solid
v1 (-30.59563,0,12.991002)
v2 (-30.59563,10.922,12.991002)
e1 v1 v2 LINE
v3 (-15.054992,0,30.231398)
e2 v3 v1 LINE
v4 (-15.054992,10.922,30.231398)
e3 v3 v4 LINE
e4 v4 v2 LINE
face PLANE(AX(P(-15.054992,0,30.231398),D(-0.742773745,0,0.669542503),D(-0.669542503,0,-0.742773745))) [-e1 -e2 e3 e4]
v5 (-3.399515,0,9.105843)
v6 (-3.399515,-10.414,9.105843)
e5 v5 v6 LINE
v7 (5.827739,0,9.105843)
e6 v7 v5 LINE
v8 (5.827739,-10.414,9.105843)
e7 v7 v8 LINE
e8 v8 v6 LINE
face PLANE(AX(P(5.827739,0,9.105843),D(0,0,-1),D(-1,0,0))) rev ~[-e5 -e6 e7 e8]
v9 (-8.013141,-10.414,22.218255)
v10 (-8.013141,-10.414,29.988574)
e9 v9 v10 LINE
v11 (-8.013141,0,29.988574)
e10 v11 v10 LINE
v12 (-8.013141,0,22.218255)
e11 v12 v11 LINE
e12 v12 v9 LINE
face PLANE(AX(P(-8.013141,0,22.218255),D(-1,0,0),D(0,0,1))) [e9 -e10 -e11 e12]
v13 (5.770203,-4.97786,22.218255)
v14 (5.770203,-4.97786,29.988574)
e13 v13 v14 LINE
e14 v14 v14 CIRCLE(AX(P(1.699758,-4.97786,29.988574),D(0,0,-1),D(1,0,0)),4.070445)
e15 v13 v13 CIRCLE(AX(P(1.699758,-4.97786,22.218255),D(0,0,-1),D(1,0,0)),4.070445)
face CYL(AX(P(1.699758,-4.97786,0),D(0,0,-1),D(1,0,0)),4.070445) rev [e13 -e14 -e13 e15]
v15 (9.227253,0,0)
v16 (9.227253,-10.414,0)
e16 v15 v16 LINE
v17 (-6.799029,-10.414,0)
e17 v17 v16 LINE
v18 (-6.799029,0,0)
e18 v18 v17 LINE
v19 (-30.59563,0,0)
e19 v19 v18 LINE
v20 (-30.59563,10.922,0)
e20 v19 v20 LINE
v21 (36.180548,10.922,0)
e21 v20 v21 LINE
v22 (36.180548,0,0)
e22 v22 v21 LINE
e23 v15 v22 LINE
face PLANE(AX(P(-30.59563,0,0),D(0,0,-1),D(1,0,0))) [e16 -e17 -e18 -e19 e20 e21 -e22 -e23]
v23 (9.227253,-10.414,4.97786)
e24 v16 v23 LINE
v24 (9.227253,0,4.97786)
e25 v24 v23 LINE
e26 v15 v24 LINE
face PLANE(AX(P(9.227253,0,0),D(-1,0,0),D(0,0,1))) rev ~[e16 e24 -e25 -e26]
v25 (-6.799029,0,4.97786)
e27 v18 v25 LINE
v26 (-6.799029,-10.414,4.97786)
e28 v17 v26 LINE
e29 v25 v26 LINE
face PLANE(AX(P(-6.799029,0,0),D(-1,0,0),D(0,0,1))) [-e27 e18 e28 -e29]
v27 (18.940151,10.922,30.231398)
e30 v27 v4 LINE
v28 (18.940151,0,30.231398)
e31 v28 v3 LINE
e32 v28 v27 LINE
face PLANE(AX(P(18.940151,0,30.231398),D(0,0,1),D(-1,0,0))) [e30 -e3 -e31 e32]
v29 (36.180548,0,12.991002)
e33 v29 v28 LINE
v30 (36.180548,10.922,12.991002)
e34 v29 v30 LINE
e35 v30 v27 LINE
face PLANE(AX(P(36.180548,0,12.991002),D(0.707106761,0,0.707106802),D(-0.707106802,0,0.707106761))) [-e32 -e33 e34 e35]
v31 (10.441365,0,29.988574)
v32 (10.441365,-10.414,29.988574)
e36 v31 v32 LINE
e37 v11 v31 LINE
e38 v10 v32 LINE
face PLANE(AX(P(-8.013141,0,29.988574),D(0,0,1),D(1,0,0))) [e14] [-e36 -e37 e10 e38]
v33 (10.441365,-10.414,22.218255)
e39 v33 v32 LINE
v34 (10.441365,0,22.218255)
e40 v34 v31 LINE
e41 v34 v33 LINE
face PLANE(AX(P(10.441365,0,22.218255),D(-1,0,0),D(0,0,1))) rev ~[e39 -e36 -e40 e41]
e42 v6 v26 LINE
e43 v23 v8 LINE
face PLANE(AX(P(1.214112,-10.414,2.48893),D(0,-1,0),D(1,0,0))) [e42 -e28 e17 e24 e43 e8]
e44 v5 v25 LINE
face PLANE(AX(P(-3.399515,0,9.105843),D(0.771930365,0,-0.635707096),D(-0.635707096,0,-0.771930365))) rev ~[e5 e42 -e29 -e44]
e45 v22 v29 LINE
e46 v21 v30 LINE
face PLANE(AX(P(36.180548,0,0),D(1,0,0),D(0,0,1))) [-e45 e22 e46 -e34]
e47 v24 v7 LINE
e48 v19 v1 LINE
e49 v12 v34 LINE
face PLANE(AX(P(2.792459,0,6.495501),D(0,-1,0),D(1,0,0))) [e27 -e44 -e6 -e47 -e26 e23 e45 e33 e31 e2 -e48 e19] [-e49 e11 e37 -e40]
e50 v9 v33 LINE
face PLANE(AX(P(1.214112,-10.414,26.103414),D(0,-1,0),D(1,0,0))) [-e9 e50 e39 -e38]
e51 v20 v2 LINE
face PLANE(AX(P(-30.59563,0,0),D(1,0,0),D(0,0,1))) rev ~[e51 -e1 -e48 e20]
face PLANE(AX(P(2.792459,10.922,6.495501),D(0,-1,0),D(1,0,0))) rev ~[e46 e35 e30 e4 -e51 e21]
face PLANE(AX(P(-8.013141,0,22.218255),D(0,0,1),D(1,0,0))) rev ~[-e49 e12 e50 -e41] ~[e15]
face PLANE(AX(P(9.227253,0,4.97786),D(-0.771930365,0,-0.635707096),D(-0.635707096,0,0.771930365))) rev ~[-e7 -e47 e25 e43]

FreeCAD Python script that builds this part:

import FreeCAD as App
import Part
import Sketcher
Q = App.Units.Quantity


def add_polygon(sketch, points):
    """Adds a closed chain of lines whose ends are joined by coincident constraints."""
    first, n = sketch.GeometryCount, len(points)
    for a, b in zip(points, points[1:] + points[:1]):
        sketch.addGeometry(Part.LineSegment(App.Vector(*a, 0), App.Vector(*b, 0)), False)
    for i in range(n):
        sketch.addConstraint(Sketcher.Constraint("Coincident", first + i, 2, first + (i + 1) % n, 1))

doc = App.newDocument("Part")
body = doc.addObject("PartDesign::Body", "Body")

sketch1 = doc.addObject("Sketcher::SketchObject", "Sketch")
body.addObject(sketch1)
sketch1.AttachmentSupport = (doc.XZ_Plane, [""])
sketch1.MapMode = "FlatFace"
add_polygon(sketch1, [(-30.59563, 12.991002), (-30.59563, 0), (36.180548, 0), (36.180548, 12.991002), (18.940151, 30.231398), (-15.054992, 30.231398)])
sketch1.addConstraint(Sketcher.Constraint("Vertical", 0))
sketch1.addConstraint(Sketcher.Constraint("Horizontal", 1))
sketch1.addConstraint(Sketcher.Constraint("Vertical", 2))
sketch1.addConstraint(Sketcher.Constraint("Horizontal", 4))
sketch1.addConstraint(Sketcher.Constraint("PointOnObject", 0, 2, -1))
sketch1.addConstraint(Sketcher.Constraint("Horizontal", 2, 2, 5, 2))
sketch1.addConstraint(Sketcher.Constraint("Angle", 3, Q("135.000002 deg")))
sketch1.addConstraint(Sketcher.Constraint("DistanceX", 1, 1, 1, 2, Q("66.776178 mm")))
sketch1.addConstraint(Sketcher.Constraint("Distance", 5, Q("23.210831 mm")))
sketch1.addConstraint(Sketcher.Constraint("DistanceX", 4, 2, 4, 1, Q("33.995143 mm")))
sketch1.addConstraint(Sketcher.Constraint("DistanceY", 0, 2, 0, 1, Q("12.991002 mm")))
sketch1.addConstraint(Sketcher.Constraint("DistanceX", 0, 2, -1, 1, Q("30.59563 mm")))
pad1 = doc.addObject("PartDesign::Pad", "Pad")
body.addObject(pad1)
pad1.Profile = sketch1
pad1.Length = Q("0.43 in")
pad1.Reversed = True

sketch2 = doc.addObject("Sketcher::SketchObject", "Sketch001")
body.addObject(sketch2)
sketch2.AttachmentSupport = (doc.XZ_Plane, [""])
sketch2.MapMode = "FlatFace"
add_polygon(sketch2, [(-8.013141, 29.988574), (-8.013141, 22.218255), (10.441365, 22.218255), (10.441365, 29.988574)])
sketch2.addConstraint(Sketcher.Constraint("Vertical", 0))
sketch2.addConstraint(Sketcher.Constraint("Horizontal", 1))
sketch2.addConstraint(Sketcher.Constraint("Vertical", 2))
sketch2.addConstraint(Sketcher.Constraint("Horizontal", 3))
sketch2.addConstraint(Sketcher.Constraint("DistanceY", 0, 2, 0, 1, Q("7.770319 mm")))
sketch2.addConstraint(Sketcher.Constraint("DistanceX", 1, 1, 1, 2, Q("18.454506 mm")))
sketch2.addConstraint(Sketcher.Constraint("DistanceX", 0, 2, -1, 1, Q("8.013141 mm")))
sketch2.addConstraint(Sketcher.Constraint("DistanceY", -1, 1, 0, 2, Q("22.218255 mm")))
pad2 = doc.addObject("PartDesign::Pad", "Pad001")
body.addObject(pad2)
pad2.Profile = sketch2
pad2.Length = Q("0.41 in")

sketch3 = doc.addObject("Sketcher::SketchObject", "Sketch002")
body.addObject(sketch3)
sketch3.AttachmentSupport = (doc.XY_Plane, [""])
sketch3.MapMode = "FlatFace"
sketch3.addGeometry(Part.Circle(App.Vector(1.699758, -4.97786, 0), App.Vector(0, 0, 1), 4.070445), False)
sketch3.addConstraint(Sketcher.Constraint("Diameter", 0, Q("8.14089 mm")))
sketch3.addConstraint(Sketcher.Constraint("DistanceX", -1, 1, 0, 3, Q("1.699758 mm")))
sketch3.addConstraint(Sketcher.Constraint("DistanceY", 0, 3, -1, 1, Q("4.97786 mm")))
pocket1 = doc.addObject("PartDesign::Pocket", "Pocket")
body.addObject(pocket1)
pocket1.Profile = sketch3
pocket1.Length = Q("1.49 in")
pocket1.Reversed = True

sketch4 = doc.addObject("Sketcher::SketchObject", "Sketch003")
body.addObject(sketch4)
sketch4.AttachmentSupport = (doc.XZ_Plane, [""])
sketch4.MapMode = "FlatFace"
add_polygon(sketch4, [(-6.799029, 4.97786), (-6.799029, 0), (9.227253, 0), (9.227253, 4.97786), (5.827739, 9.105843), (-3.399515, 9.105843)])
sketch4.addConstraint(Sketcher.Constraint("Vertical", 0))
sketch4.addConstraint(Sketcher.Constraint("Horizontal", 1))
sketch4.addConstraint(Sketcher.Constraint("Vertical", 2))
sketch4.addConstraint(Sketcher.Constraint("Horizontal", 4))
sketch4.addConstraint(Sketcher.Constraint("PointOnObject", 0, 2, -1))
sketch4.addConstraint(Sketcher.Constraint("Horizontal", 2, 2, 5, 2))
sketch4.addConstraint(Sketcher.Constraint("Equal", 3, 5))
sketch4.addConstraint(Sketcher.Constraint("DistanceX", 1, 1, 1, 2, Q("16.026282 mm")))
sketch4.addConstraint(Sketcher.Constraint("DistanceY", 0, 2, 0, 1, Q("4.97786 mm")))
sketch4.addConstraint(Sketcher.Constraint("Distance", 3, Q("5.347611 mm")))
sketch4.addConstraint(Sketcher.Constraint("DistanceX", 4, 2, 4, 1, Q("9.227254 mm")))
sketch4.addConstraint(Sketcher.Constraint("DistanceX", 0, 2, -1, 1, Q("6.799029 mm")))
pad3 = doc.addObject("PartDesign::Pad", "Pad002")
body.addObject(pad3)
pad3.Profile = sketch4
pad3.Length = Q("0.41 in")

doc.recompute()
